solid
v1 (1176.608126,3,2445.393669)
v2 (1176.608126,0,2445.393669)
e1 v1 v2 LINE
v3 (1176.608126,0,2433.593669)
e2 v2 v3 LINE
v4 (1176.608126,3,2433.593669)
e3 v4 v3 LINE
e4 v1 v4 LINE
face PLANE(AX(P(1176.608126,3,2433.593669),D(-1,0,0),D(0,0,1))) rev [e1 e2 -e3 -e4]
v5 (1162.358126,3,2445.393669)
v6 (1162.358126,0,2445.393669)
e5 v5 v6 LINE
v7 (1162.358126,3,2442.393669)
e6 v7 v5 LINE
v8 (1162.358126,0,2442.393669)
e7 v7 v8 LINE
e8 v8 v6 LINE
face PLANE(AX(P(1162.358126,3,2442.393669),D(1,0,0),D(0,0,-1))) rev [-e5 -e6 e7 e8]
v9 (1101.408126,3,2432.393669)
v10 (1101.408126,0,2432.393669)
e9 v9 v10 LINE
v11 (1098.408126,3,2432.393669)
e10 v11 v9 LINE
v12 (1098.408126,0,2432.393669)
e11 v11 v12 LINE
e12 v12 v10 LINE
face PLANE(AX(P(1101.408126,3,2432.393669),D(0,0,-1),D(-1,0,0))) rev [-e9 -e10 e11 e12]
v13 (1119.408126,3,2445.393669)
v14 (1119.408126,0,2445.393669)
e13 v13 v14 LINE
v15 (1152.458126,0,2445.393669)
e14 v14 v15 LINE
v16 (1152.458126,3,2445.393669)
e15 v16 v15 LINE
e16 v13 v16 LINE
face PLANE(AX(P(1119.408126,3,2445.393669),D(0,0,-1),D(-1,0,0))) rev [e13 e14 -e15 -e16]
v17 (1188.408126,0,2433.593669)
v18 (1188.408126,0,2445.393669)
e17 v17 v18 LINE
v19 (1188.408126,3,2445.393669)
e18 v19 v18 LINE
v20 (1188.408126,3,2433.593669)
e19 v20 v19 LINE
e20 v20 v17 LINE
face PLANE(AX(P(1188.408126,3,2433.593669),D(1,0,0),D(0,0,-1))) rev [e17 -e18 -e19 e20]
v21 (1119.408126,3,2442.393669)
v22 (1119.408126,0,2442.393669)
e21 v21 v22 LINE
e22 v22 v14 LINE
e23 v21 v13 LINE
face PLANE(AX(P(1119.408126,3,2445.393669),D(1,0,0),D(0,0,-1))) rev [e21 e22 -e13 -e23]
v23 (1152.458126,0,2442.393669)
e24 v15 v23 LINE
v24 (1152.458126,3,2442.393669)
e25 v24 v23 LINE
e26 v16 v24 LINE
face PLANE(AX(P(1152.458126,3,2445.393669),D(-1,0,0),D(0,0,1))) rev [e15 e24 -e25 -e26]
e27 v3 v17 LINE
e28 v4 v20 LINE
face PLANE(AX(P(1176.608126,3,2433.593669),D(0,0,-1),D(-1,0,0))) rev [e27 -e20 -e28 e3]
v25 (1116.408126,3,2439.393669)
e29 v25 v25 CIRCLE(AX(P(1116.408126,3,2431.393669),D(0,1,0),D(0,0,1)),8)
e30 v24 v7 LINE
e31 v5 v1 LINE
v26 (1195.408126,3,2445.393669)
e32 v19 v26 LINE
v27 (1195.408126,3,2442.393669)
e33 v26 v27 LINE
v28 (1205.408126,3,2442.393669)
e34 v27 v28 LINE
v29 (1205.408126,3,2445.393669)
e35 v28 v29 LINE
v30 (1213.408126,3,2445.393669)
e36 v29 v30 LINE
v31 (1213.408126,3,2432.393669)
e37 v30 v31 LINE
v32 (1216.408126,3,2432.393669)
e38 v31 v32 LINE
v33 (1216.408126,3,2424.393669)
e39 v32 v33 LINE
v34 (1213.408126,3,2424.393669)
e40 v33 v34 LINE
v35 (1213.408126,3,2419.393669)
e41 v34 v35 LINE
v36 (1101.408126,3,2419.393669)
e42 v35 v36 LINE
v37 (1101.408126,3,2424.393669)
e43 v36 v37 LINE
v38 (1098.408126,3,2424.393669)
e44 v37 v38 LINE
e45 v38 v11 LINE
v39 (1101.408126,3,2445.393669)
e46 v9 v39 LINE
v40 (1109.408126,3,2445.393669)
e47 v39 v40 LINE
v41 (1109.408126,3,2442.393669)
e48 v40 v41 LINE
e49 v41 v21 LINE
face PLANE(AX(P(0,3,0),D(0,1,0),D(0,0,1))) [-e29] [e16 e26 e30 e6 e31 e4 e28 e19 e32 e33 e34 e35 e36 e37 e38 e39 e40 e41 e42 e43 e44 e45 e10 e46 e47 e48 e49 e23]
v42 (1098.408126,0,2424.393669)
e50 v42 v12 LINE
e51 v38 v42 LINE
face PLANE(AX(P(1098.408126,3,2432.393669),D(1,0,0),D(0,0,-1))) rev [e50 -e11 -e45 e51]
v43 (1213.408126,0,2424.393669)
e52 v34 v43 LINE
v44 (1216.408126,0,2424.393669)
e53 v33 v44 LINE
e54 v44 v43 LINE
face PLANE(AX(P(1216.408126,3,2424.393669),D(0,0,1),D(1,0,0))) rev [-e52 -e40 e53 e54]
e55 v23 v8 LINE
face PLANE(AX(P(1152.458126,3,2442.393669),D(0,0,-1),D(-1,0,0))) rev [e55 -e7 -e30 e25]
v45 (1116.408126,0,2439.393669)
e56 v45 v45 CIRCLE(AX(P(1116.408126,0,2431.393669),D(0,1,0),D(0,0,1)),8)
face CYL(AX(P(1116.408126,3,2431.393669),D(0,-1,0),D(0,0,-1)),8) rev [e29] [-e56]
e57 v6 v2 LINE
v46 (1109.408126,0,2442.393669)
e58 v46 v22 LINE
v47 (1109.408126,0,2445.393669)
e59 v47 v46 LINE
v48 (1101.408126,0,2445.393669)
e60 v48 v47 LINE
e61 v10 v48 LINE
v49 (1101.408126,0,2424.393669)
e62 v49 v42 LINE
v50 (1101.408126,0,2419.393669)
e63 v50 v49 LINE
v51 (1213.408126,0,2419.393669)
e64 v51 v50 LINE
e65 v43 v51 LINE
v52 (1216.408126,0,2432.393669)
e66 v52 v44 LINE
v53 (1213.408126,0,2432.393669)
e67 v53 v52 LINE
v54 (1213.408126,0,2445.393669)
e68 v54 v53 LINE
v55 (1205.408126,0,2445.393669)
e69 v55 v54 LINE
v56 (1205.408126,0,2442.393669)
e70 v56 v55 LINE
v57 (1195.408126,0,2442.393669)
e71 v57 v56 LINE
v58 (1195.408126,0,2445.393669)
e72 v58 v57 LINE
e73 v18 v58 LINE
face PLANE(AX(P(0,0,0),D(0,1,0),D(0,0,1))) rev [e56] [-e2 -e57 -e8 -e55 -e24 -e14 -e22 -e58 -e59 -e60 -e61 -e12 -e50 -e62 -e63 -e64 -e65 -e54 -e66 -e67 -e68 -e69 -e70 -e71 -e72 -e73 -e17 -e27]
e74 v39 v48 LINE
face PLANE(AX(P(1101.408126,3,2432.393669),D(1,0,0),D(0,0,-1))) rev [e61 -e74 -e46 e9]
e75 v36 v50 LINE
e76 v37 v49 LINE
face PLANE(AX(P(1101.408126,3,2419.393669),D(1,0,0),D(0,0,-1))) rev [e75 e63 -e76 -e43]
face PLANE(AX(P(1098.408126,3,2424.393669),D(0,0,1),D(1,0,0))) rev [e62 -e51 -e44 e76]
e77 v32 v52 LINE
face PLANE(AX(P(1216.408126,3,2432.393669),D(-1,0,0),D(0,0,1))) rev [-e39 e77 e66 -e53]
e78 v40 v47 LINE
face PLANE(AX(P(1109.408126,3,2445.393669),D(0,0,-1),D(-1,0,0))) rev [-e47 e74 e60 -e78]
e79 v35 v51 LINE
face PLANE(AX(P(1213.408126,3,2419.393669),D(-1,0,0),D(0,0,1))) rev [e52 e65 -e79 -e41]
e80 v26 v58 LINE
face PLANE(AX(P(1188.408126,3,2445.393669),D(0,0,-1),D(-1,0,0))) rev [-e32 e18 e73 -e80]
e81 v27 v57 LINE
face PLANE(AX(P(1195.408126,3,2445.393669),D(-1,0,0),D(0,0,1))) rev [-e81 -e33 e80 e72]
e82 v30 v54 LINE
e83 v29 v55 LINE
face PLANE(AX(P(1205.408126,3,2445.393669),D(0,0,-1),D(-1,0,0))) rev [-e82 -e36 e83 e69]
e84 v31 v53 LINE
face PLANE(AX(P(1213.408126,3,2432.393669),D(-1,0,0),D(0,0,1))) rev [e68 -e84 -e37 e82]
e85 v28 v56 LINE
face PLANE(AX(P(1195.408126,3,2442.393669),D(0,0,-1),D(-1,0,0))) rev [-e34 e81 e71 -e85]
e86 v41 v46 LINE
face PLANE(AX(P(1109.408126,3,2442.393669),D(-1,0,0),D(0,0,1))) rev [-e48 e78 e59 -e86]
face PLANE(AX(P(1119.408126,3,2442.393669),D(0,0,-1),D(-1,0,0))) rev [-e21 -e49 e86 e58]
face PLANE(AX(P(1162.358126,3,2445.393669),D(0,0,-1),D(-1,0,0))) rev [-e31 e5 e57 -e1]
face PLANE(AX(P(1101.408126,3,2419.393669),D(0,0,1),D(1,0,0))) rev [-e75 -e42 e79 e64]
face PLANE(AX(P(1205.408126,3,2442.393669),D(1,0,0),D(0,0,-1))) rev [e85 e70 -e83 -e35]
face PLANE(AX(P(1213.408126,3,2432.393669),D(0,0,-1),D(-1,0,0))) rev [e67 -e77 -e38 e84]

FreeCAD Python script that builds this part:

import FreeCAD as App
import Part
import Sketcher
from FreeCAD import Vector

doc = App.newDocument("Part")
body = doc.addObject("PartDesign::Body", "Body")

# Sketch on XZ plane
sketch1 = body.newObject("Sketcher::SketchObject", "Sketch")
sketch1.AttachmentSupport = (doc.getObject("XZ_Plane"), [""])
sketch1.MapMode = "FlatFace"
sketch1.addGeometry(Part.LineSegment(Vector(1213.408126, 2432.393669, 0), Vector(1216.408126, 2432.393669, 0)), False)
sketch1.addGeometry(Part.LineSegment(Vector(1216.408126, 2432.393669, 0), Vector(1216.408126, 2424.393669, 0)), False)
sketch1.addGeometry(Part.LineSegment(Vector(1216.408126, 2424.393669, 0), Vector(1213.408126, 2424.393669, 0)), False)
sketch1.addGeometry(Part.LineSegment(Vector(1213.408126, 2424.393669, 0), Vector(1213.408126, 2419.393669, 0)), False)
sketch1.addGeometry(Part.LineSegment(Vector(1213.408126, 2419.393669, 0), Vector(1101.408126, 2419.393669, 0)), False)
sketch1.addGeometry(Part.LineSegment(Vector(1101.408126, 2419.393669, 0), Vector(1101.408126, 2424.393669, 0)), False)
sketch1.addGeometry(Part.LineSegment(Vector(1101.408126, 2424.393669, 0), Vector(1098.408126, 2424.393669, 0)), False)
sketch1.addGeometry(Part.LineSegment(Vector(1098.408126, 2424.393669, 0), Vector(1098.408126, 2432.393669, 0)), False)
sketch1.addGeometry(Part.LineSegment(Vector(1098.408126, 2432.393669, 0), Vector(1101.408126, 2432.393669, 0)), False)
sketch1.addGeometry(Part.LineSegment(Vector(1101.408126, 2432.393669, 0), Vector(1101.408126, 2445.393669, 0)), False)
sketch1.addGeometry(Part.LineSegment(Vector(1101.408126, 2445.393669, 0), Vector(1109.408126, 2445.393669, 0)), False)
sketch1.addGeometry(Part.LineSegment(Vector(1109.408126, 2445.393669, 0), Vector(1109.408126, 2442.393669, 0)), False)
sketch1.addGeometry(Part.LineSegment(Vector(1109.408126, 2442.393669, 0), Vector(1119.408126, 2442.393669, 0)), False)
sketch1.addGeometry(Part.LineSegment(Vector(1119.408126, 2442.393669, 0), Vector(1119.408126, 2445.393669, 0)), False)
sketch1.addGeometry(Part.LineSegment(Vector(1119.408126, 2445.393669, 0), Vector(1152.458126, 2445.393669, 0)), False)
sketch1.addGeometry(Part.LineSegment(Vector(1152.458126, 2445.393669, 0), Vector(1152.458126, 2442.393669, 0)), False)
sketch1.addGeometry(Part.LineSegment(Vector(1152.458126, 2442.393669, 0), Vector(1162.358126, 2442.393669, 0)), False)
sketch1.addGeometry(Part.LineSegment(Vector(1162.358126, 2442.393669, 0), Vector(1162.358126, 2445.393669, 0)), False)
sketch1.addGeometry(Part.LineSegment(Vector(1162.358126, 2445.393669, 0), Vector(1176.608126, 2445.393669, 0)), False)
sketch1.addGeometry(Part.LineSegment(Vector(1176.608126, 2445.393669, 0), Vector(1176.608126, 2433.593669, 0)), False)
sketch1.addGeometry(Part.LineSegment(Vector(1176.608126, 2433.593669, 0), Vector(1188.408126, 2433.593669, 0)), False)
sketch1.addGeometry(Part.LineSegment(Vector(1188.408126, 2433.593669, 0), Vector(1188.408126, 2445.393669, 0)), False)
sketch1.addGeometry(Part.LineSegment(Vector(1188.408126, 2445.393669, 0), Vector(1195.408126, 2445.393669, 0)), False)
sketch1.addGeometry(Part.LineSegment(Vector(1195.408126, 2445.393669, 0), Vector(1195.408126, 2442.393669, 0)), False)
sketch1.addGeometry(Part.LineSegment(Vector(1195.408126, 2442.393669, 0), Vector(1205.408126, 2442.393669, 0)), False)
sketch1.addGeometry(Part.LineSegment(Vector(1205.408126, 2442.393669, 0), Vector(1205.408126, 2445.393669, 0)), False)
sketch1.addGeometry(Part.LineSegment(Vector(1205.408126, 2445.393669, 0), Vector(1213.408126, 2445.393669, 0)), False)
sketch1.addGeometry(Part.LineSegment(Vector(1213.408126, 2445.393669, 0), Vector(1213.408126, 2432.393669, 0)), False)
sketch1.addGeometry(Part.Circle(Vector(1116.408126, 2431.393669, 0), Vector(0, 0, 1), 8), False)
sketch1.addConstraint(Sketcher.Constraint("Coincident", 0, 2, 1, 1))
sketch1.addConstraint(Sketcher.Constraint("Coincident", 1, 2, 2, 1))
sketch1.addConstraint(Sketcher.Constraint("Coincident", 2, 2, 3, 1))
sketch1.addConstraint(Sketcher.Constraint("Coincident", 3, 2, 4, 1))
sketch1.addConstraint(Sketcher.Constraint("Coincident", 4, 2, 5, 1))
sketch1.addConstraint(Sketcher.Constraint("Coincident", 5, 2, 6, 1))
sketch1.addConstraint(Sketcher.Constraint("Coincident", 6, 2, 7, 1))
sketch1.addConstraint(Sketcher.Constraint("Coincident", 7, 2, 8, 1))
sketch1.addConstraint(Sketcher.Constraint("Coincident", 8, 2, 9, 1))
sketch1.addConstraint(Sketcher.Constraint("Coincident", 9, 2, 10, 1))
sketch1.addConstraint(Sketcher.Constraint("Coincident", 10, 2, 11, 1))
sketch1.addConstraint(Sketcher.Constraint("Coincident", 11, 2, 12, 1))
sketch1.addConstraint(Sketcher.Constraint("Coincident", 12, 2, 13, 1))
sketch1.addConstraint(Sketcher.Constraint("Coincident", 13, 2, 14, 1))
sketch1.addConstraint(Sketcher.Constraint("Coincident", 14, 2, 15, 1))
sketch1.addConstraint(Sketcher.Constraint("Coincident", 15, 2, 16, 1))
sketch1.addConstraint(Sketcher.Constraint("Coincident", 16, 2, 17, 1))
sketch1.addConstraint(Sketcher.Constraint("Coincident", 17, 2, 18, 1))
sketch1.addConstraint(Sketcher.Constraint("Coincident", 18, 2, 19, 1))
sketch1.addConstraint(Sketcher.Constraint("Coincident", 19, 2, 20, 1))
sketch1.addConstraint(Sketcher.Constraint("Coincident", 20, 2, 21, 1))
sketch1.addConstraint(Sketcher.Constraint("Coincident", 21, 2, 22, 1))
sketch1.addConstraint(Sketcher.Constraint("Coincident", 22, 2, 23, 1))
sketch1.addConstraint(Sketcher.Constraint("Coincident", 23, 2, 24, 1))
sketch1.addConstraint(Sketcher.Constraint("Coincident", 24, 2, 25, 1))
sketch1.addConstraint(Sketcher.Constraint("Coincident", 25, 2, 26, 1))
sketch1.addConstraint(Sketcher.Constraint("Coincident", 26, 2, 27, 1))
sketch1.addConstraint(Sketcher.Constraint("Coincident", 27, 2, 0, 1))
sketch1.addConstraint(Sketcher.Constraint("Horizontal", 0))
sketch1.addConstraint(Sketcher.Constraint("Vertical", 1))
sketch1.addConstraint(Sketcher.Constraint("Horizontal", 2))
sketch1.addConstraint(Sketcher.Constraint("Vertical", 3))
sketch1.addConstraint(Sketcher.Constraint("Horizontal", 4))
sketch1.addConstraint(Sketcher.Constraint("Vertical", 5))
sketch1.addConstraint(Sketcher.Constraint("Horizontal", 6))
sketch1.addConstraint(Sketcher.Constraint("Vertical", 7))
sketch1.addConstraint(Sketcher.Constraint("Horizontal", 8))
sketch1.addConstraint(Sketcher.Constraint("Vertical", 9))
sketch1.addConstraint(Sketcher.Constraint("Horizontal", 10))
sketch1.addConstraint(Sketcher.Constraint("Vertical", 11))
sketch1.addConstraint(Sketcher.Constraint("Horizontal", 12))
sketch1.addConstraint(Sketcher.Constraint("Vertical", 13))
sketch1.addConstraint(Sketcher.Constraint("Horizontal", 14))
sketch1.addConstraint(Sketcher.Constraint("Vertical", 15))
sketch1.addConstraint(Sketcher.Constraint("Horizontal", 16))
sketch1.addConstraint(Sketcher.Constraint("Vertical", 17))
sketch1.addConstraint(Sketcher.Constraint("Horizontal", 18))
sketch1.addConstraint(Sketcher.Constraint("Vertical", 19))
sketch1.addConstraint(Sketcher.Constraint("Horizontal", 20))
sketch1.addConstraint(Sketcher.Constraint("Vertical", 21))
sketch1.addConstraint(Sketcher.Constraint("Horizontal", 22))
sketch1.addConstraint(Sketcher.Constraint("Vertical", 23))
sketch1.addConstraint(Sketcher.Constraint("Horizontal", 24))
sketch1.addConstraint(Sketcher.Constraint("Vertical", 25))
sketch1.addConstraint(Sketcher.Constraint("Horizontal", 26))
sketch1.addConstraint(Sketcher.Constraint("Vertical", 27))
sketch1.addConstraint(Sketcher.Constraint("Horizontal", 2, 2, 5, 2))
sketch1.addConstraint(Sketcher.Constraint("Horizontal", 0, 2, 7, 2))
sketch1.addConstraint(Sketcher.Constraint("Horizontal", 10, 2, 13, 2))
sketch1.addConstraint(Sketcher.Constraint("Horizontal", 12, 2, 15, 2))
sketch1.addConstraint(Sketcher.Constraint("Horizontal", 14, 2, 17, 2))
sketch1.addConstraint(Sketcher.Constraint("Horizontal", 18, 2, 21, 2))
sketch1.addConstraint(Sketcher.Constraint("Horizontal", 16, 2, 23, 2))
sketch1.addConstraint(Sketcher.Constraint("Horizontal", 22, 2, 25, 2))
sketch1.addConstraint(Sketcher.Constraint("Vertical", 5, 2, 8, 2))
sketch1.addConstraint(Sketcher.Constraint("Vertical", 3, 2, 26, 2))
sketch1.addConstraint(Sketcher.Constraint("Equal", 2, 6))
sketch1.addConstraint(Sketcher.Constraint("Equal", 12, 24))
sketch1.addConstraint(Sketcher.Constraint("Equal", 10, 26))
sketch1.addConstraint(Sketcher.Constraint("Equal", 26, 1))
sketch1.addConstraint(Sketcher.Constraint("Equal", 8, 11))
sketch1.addConstraint(Sketcher.Constraint("Equal", 20, 19))
sketch1.addConstraint(Sketcher.Constraint("Diameter", 28, 16.0))
sketch1.addConstraint(Sketcher.Constraint("DistanceX", 0, 1, 0, 2, 3.0))
sketch1.addConstraint(Sketcher.Constraint("DistanceX", 4, 2, 4, 1, 112.0))
sketch1.addConstraint(Sketcher.Constraint("DistanceX", 10, 1, 10, 2, 8.0))
sketch1.addConstraint(Sketcher.Constraint("DistanceX", 12, 1, 12, 2, 10.0))
sketch1.addConstraint(Sketcher.Constraint("DistanceX", 22, 1, 22, 2, 7.0))
sketch1.addConstraint(Sketcher.Constraint("DistanceY", 3, 2, 3, 1, 5.0))
sketch1.addConstraint(Sketcher.Constraint("DistanceY", 9, 1, 9, 2, 13.0))
sketch1.addConstraint(Sketcher.Constraint("DistanceX", 16, 1, 16, 2, 9.9))
sketch1.addConstraint(Sketcher.Constraint("DistanceX", 20, 1, 20, 2, 11.8))
sketch1.addConstraint(Sketcher.Constraint("DistanceX", 28, 3, 0, 2, 100.0))
sketch1.addConstraint(Sketcher.Constraint("DistanceY", 28, 3, 0, 2, 1.0))
sketch1.addConstraint(Sketcher.Constraint("DistanceX", 14, 1, 14, 2, 33.05))
sketch1.addConstraint(Sketcher.Constraint("DistanceY", -1, 1, 28, 3, 2431.393669))
sketch1.addConstraint(Sketcher.Constraint("DistanceX", -1, 1, 28, 3, 1116.408126))
pad1 = body.newObject("PartDesign::Pad", "Pad")
pad1.Profile = sketch1
pad1.Length = 3
pad1.Reversed = True

doc.recompute()
